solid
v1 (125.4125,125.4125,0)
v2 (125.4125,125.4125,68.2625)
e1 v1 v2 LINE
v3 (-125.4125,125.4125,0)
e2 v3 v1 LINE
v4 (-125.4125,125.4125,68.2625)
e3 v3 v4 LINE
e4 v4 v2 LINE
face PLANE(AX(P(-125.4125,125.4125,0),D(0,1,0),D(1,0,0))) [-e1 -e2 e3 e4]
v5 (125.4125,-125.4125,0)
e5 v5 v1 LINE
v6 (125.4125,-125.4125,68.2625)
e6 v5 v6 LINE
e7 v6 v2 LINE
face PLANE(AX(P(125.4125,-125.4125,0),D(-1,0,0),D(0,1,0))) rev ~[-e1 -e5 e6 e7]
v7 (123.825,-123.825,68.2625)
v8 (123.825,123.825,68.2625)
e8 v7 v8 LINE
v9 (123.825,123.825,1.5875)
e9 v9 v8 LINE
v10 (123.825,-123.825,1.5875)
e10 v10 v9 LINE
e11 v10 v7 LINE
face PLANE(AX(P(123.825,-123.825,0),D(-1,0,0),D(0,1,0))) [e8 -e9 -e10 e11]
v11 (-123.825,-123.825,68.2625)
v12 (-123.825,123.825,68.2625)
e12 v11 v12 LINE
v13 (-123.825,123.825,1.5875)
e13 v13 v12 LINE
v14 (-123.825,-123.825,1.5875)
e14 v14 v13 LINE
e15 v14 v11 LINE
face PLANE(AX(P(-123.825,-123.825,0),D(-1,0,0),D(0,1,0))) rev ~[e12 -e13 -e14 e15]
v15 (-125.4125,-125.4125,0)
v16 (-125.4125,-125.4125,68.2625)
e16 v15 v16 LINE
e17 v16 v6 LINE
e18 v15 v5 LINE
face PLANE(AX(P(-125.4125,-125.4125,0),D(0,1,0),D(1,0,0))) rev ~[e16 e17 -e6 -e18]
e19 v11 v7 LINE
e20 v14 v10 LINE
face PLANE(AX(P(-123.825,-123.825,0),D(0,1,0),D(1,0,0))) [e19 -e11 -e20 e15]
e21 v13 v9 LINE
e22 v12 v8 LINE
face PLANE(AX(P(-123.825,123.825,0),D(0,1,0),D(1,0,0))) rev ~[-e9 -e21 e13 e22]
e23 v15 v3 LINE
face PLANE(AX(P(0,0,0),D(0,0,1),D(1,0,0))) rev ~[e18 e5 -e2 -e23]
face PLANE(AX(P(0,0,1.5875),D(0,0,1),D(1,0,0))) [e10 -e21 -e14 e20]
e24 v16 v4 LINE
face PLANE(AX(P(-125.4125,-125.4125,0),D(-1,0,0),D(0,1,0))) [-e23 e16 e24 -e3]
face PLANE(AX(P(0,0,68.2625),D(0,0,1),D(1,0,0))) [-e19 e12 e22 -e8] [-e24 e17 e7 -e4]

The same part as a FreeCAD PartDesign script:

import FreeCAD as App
import Part
import Sketcher
Q = App.Units.Quantity


def add_polygon(sketch, points):
    """Adds a closed chain of lines whose ends are joined by coincident constraints."""
    first, n = sketch.GeometryCount, len(points)
    for a, b in zip(points, points[1:] + points[:1]):
        sketch.addGeometry(Part.LineSegment(App.Vector(*a, 0), App.Vector(*b, 0)), False)
    for i in range(n):
        sketch.addConstraint(Sketcher.Constraint("Coincident", first + i, 2, first + (i + 1) % n, 1))

doc = App.newDocument("Part")
params = doc.addObject("Spreadsheet::Sheet", "Params")
for row, (alias, value) in enumerate([
    ("sketch1_width", "9.75 in"),
    ("pad1_length", "0.0625 in"),
    ("sketch2_width", "9.75 in"),
    ("sketch2_width2", "9.875 in"),
    ("pad2_length", "2.6875 in"),
], start=1):
    params.set(f"A{row}", alias)
    params.set(f"B{row}", "=" + value)
    params.setAlias(f"B{row}", alias)

body = doc.addObject("PartDesign::Body", "Body")

# Sketch on XY plane
sketch1 = body.newObject("Sketcher::SketchObject", "Sketch")
sketch1.AttachmentSupport = (doc.getObject("XY_Plane"), [""])
sketch1.MapMode = "FlatFace"
add_polygon(sketch1, [(-124, 124), (-124, -124), (124, -124), (124, 124)])  # lines 0-3
sketch1.addConstraint([
    Sketcher.Constraint("Vertical", 0),
    Sketcher.Constraint("Horizontal", 1),
    Sketcher.Constraint("Vertical", 2),
    Sketcher.Constraint("Horizontal", 3),
    Sketcher.Constraint("Symmetric", 0, 2, 2, 2, -1, 1),
    Sketcher.Constraint("Equal", 3, 0),
    Sketcher.Constraint("DistanceX", 1, 1, 1, 2, Q("9.75 in")),
])
sketch1.setExpression("Constraints[10]", "Params.sketch1_width")
pad1 = body.newObject("PartDesign::Pad", "Pad")
pad1.Profile = sketch1
pad1.setExpression("Length", "Params.pad1_length")

# Sketch on XY plane
sketch2 = body.newObject("Sketcher::SketchObject", "Sketch001")
sketch2.AttachmentSupport = (doc.getObject("XY_Plane"), [""])
sketch2.MapMode = "FlatFace"
add_polygon(sketch2, [(-125, 125), (-125, -125), (125, -125), (125, 125)])  # lines 0-3
add_polygon(sketch2, [(124, -124), (-124, -124), (-124, 124), (124, 124)])  # lines 4-7
sketch2.addConstraint([
    Sketcher.Constraint("Vertical", 0),
    Sketcher.Constraint("Horizontal", 1),
    Sketcher.Constraint("Vertical", 2),
    Sketcher.Constraint("Horizontal", 3),
    Sketcher.Constraint("Horizontal", 4),
    Sketcher.Constraint("Vertical", 5),
    Sketcher.Constraint("Horizontal", 6),
    Sketcher.Constraint("Vertical", 7),
    Sketcher.Constraint("Symmetric", 0, 2, 2, 2, -1, 1),
    Sketcher.Constraint("Symmetric", 4, 2, 6, 2, -1, 1),
    Sketcher.Constraint("Equal", 3, 0),
    Sketcher.Constraint("Equal", 6, 5),
    Sketcher.Constraint("DistanceX", 4, 2, 4, 1, Q("9.75 in")),
    Sketcher.Constraint("DistanceX", 1, 1, 1, 2, Q("9.875 in")),
])
sketch2.setExpression("Constraints[20]", "Params.sketch2_width")
sketch2.setExpression("Constraints[21]", "Params.sketch2_width2")
pad2 = body.newObject("PartDesign::Pad", "Pad001")
pad2.Profile = sketch2
pad2.setExpression("Length", "Params.pad2_length")

doc.recompute()
